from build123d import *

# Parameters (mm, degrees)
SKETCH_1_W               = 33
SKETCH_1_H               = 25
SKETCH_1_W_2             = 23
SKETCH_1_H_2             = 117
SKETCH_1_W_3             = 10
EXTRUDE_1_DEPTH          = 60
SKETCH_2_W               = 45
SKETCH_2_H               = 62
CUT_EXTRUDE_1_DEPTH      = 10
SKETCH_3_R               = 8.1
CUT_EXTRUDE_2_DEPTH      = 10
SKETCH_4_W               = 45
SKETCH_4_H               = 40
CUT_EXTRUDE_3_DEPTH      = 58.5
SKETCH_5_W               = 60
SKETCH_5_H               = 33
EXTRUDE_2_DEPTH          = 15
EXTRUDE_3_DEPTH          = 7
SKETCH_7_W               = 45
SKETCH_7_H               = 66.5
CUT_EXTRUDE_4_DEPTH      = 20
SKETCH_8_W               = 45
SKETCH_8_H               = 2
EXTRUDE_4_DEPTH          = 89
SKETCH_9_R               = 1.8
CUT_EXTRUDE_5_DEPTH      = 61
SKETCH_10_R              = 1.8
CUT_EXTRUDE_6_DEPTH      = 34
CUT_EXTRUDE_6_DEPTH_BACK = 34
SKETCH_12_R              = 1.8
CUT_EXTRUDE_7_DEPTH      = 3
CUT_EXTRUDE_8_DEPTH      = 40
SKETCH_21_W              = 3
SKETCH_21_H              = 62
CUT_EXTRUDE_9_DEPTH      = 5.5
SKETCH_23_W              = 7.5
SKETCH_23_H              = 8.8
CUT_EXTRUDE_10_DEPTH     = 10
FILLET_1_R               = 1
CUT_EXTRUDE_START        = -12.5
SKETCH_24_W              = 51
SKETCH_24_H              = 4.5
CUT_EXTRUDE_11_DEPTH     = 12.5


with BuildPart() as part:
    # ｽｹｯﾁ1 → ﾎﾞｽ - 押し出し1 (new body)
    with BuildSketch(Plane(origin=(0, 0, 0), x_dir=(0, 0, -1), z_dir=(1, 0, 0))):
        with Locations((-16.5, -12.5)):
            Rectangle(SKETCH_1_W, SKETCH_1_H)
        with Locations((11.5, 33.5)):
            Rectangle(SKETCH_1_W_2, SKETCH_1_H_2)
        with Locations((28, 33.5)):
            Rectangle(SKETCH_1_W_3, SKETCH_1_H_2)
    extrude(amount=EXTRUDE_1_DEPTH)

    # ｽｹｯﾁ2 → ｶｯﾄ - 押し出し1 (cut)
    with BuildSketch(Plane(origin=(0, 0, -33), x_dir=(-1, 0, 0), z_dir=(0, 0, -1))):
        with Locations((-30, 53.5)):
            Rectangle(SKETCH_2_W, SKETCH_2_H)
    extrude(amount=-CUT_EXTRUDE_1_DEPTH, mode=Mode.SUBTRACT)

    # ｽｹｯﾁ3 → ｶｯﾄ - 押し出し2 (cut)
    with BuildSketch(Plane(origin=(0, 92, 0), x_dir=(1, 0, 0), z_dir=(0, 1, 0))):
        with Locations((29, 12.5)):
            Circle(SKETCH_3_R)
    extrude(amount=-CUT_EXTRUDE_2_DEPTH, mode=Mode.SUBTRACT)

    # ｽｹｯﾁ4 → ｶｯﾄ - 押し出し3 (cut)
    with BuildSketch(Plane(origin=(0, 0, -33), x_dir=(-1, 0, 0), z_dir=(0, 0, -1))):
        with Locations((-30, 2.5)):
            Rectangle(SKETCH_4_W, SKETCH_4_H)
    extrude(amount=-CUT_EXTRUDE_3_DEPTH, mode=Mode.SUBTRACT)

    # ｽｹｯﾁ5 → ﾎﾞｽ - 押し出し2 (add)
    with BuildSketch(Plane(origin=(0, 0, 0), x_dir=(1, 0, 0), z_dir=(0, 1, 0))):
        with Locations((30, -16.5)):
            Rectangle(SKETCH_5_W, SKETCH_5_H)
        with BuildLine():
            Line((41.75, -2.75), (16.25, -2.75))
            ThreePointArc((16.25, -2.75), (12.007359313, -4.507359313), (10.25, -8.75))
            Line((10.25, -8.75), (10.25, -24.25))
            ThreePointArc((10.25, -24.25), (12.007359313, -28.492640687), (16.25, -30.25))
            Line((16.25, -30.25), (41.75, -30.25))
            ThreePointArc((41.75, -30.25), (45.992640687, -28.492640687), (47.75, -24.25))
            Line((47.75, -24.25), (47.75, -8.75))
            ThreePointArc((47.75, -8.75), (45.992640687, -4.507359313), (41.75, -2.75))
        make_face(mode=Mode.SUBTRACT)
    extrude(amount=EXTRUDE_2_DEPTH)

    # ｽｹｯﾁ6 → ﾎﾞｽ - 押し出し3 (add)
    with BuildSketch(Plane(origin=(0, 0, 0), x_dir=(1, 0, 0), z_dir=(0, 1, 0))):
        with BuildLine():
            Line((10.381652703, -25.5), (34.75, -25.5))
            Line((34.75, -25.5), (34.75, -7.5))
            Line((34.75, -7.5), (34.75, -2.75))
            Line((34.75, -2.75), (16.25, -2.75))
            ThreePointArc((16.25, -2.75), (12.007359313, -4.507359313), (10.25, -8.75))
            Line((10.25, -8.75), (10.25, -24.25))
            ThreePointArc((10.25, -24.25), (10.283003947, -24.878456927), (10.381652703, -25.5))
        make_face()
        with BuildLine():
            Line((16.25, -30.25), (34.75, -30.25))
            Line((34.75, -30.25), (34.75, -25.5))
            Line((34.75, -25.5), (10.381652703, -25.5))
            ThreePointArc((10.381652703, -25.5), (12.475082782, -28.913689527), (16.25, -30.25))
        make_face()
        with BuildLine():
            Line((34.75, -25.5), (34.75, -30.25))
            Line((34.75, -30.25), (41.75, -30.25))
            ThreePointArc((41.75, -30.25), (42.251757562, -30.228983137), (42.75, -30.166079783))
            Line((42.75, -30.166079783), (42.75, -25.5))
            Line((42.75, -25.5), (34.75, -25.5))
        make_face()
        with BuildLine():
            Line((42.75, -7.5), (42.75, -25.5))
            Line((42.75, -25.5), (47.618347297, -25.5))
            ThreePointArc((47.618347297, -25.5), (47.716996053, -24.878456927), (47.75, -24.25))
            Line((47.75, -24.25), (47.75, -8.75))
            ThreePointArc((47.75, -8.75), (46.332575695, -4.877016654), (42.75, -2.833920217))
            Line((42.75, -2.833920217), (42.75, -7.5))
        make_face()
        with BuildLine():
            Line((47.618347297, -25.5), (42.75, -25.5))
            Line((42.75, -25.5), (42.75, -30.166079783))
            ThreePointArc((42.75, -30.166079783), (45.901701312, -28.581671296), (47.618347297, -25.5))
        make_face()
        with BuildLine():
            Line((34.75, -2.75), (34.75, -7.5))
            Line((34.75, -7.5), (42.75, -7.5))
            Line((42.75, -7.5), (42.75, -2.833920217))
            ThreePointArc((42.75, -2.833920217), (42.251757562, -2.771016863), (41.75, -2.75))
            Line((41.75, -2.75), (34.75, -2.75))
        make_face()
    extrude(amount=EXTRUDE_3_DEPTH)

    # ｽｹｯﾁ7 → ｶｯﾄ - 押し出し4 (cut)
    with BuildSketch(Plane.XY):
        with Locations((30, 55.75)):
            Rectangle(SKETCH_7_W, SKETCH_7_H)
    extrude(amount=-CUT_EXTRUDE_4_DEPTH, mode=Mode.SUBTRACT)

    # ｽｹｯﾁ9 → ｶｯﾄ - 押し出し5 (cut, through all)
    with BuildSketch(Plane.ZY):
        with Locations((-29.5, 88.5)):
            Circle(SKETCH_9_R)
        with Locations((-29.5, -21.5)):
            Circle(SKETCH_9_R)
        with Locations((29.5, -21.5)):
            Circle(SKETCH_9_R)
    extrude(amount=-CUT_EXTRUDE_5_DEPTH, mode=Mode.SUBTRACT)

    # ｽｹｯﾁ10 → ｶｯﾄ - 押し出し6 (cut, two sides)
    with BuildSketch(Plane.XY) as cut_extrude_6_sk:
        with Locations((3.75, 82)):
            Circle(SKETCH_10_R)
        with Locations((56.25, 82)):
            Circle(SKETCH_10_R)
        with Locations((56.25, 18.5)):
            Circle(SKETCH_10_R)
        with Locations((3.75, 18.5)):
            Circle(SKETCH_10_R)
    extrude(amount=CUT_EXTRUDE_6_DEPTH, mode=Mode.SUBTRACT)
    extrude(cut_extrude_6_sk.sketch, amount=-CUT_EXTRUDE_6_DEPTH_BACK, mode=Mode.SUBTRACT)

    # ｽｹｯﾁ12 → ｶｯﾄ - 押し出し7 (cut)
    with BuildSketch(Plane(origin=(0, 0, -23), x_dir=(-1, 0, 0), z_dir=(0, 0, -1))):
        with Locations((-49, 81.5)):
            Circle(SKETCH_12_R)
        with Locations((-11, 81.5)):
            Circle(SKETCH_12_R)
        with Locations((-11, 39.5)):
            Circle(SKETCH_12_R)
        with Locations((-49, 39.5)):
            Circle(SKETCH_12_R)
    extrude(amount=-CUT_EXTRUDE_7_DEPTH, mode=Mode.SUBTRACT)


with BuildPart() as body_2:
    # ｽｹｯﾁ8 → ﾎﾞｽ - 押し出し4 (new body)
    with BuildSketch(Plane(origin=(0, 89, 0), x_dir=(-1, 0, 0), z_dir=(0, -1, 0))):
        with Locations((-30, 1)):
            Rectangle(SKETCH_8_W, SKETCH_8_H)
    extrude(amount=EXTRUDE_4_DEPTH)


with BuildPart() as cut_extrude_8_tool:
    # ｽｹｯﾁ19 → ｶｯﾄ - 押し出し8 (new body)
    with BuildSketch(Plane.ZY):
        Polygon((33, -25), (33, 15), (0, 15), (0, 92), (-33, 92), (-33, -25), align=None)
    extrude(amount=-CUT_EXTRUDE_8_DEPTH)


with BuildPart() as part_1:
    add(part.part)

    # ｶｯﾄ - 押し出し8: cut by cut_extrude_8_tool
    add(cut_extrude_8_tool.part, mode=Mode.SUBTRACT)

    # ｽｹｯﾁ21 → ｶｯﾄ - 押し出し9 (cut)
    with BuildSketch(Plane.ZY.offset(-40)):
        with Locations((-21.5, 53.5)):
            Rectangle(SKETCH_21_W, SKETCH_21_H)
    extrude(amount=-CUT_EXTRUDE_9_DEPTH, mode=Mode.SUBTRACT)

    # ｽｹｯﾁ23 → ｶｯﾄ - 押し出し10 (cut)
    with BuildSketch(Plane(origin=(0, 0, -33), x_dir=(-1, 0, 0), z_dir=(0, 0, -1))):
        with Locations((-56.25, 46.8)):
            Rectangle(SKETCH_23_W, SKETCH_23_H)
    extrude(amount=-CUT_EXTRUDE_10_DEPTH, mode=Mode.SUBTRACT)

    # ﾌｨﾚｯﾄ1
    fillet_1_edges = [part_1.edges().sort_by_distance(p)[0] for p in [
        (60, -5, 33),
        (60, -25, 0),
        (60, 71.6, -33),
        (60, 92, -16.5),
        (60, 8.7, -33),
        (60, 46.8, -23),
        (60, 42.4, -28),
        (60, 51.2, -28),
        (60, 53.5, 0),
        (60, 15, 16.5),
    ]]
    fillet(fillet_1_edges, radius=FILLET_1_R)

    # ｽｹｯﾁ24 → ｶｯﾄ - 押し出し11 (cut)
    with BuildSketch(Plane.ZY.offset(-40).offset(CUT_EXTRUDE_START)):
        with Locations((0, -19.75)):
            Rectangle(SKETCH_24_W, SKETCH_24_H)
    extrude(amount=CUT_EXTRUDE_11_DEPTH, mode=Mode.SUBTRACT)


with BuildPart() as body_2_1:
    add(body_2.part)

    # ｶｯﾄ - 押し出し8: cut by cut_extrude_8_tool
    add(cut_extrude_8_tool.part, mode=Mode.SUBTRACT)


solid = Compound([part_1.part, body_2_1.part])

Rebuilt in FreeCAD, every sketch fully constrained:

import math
import FreeCAD as App
import Part
import Sketcher

V = App.Vector
Q = App.Units.Quantity


def edges_at(feature, points):
    """Names of the edges that pass closest to the given points."""
    edges = feature.Shape.Edges
    near = lambda p: min(range(len(edges)), key=lambda i: edges[i].distToShape(Part.Vertex(*p))[0])
    return sorted({f"Edge{near(p) + 1}" for p in points})

doc = App.newDocument("Part")
body = doc.addObject("PartDesign::Body", "Body")

# Sketch on YZ plane
sketch1 = body.newObject("Sketcher::SketchObject", "Sketch")
sketch1.AttachmentSupport = (doc.getObject("YZ_Plane"), [""])
sketch1.MapMode = "FlatFace"
sketch1.addGeometry(Part.LineSegment(V(0, 33, 0), V(-25, 33, 0)), False)
sketch1.addGeometry(Part.LineSegment(V(-25, 33, 0), V(-25, -33, 0)), False)
sketch1.addGeometry(Part.LineSegment(V(-25, -33, 0), V(92, -33, 0)), False)
sketch1.addGeometry(Part.LineSegment(V(92, -33, 0), V(92, 0, 0)), False)
sketch1.addGeometry(Part.LineSegment(V(92, 0, 0), V(0, 0, 0)), False)
sketch1.addGeometry(Part.LineSegment(V(0, 0, 0), V(0, 33, 0)), False)
sketch1.addConstraint(Sketcher.Constraint("Coincident", 0, 2, 1, 1))
sketch1.addConstraint(Sketcher.Constraint("Coincident", 1, 2, 2, 1))
sketch1.addConstraint(Sketcher.Constraint("Coincident", 2, 2, 3, 1))
sketch1.addConstraint(Sketcher.Constraint("Coincident", 3, 2, 4, 1))
sketch1.addConstraint(Sketcher.Constraint("Coincident", 4, 2, 5, 1))
sketch1.addConstraint(Sketcher.Constraint("Coincident", 5, 2, 0, 1))
sketch1.addConstraint(Sketcher.Constraint("Horizontal", 0))
sketch1.addConstraint(Sketcher.Constraint("Vertical", 1))
sketch1.addConstraint(Sketcher.Constraint("Horizontal", 2))
sketch1.addConstraint(Sketcher.Constraint("Vertical", 3))
sketch1.addConstraint(Sketcher.Constraint("Horizontal", 4))
sketch1.addConstraint(Sketcher.Constraint("Vertical", 5))
sketch1.addConstraint(Sketcher.Constraint("Coincident", 4, 2, -1, 1))
sketch1.addConstraint(Sketcher.Constraint("Equal", 3, 5))
sketch1.addConstraint(Sketcher.Constraint("DistanceX", 0, 2, 0, 1, Q("25 mm")))
sketch1.addConstraint(Sketcher.Constraint("DistanceX", 2, 1, 2, 2, Q("117 mm")))
sketch1.addConstraint(Sketcher.Constraint("DistanceY", 1, 2, 1, 1, Q("66 mm")))
pad1 = body.newObject("PartDesign::Pad", "Pad")
pad1.Profile = sketch1
pad1.Length = 60

# Sketch on XY plane
sketch2 = body.newObject("Sketcher::SketchObject", "Sketch001")
sketch2.AttachmentSupport = (doc.getObject("XY_Plane"), [""])
sketch2.MapMode = "FlatFace"
sketch2.AttachmentOffset = App.Placement(V(0, 0, -33), App.Rotation())
sketch2.addGeometry(Part.LineSegment(V(52, 84, 0), V(52, 22, 0)), False)
sketch2.addGeometry(Part.LineSegment(V(52, 22, 0), V(8, 22, 0)), False)
sketch2.addGeometry(Part.LineSegment(V(8, 22, 0), V(8, 84, 0)), False)
sketch2.addGeometry(Part.LineSegment(V(8, 84, 0), V(52, 84, 0)), False)
sketch2.addConstraint(Sketcher.Constraint("Coincident", 0, 2, 1, 1))
sketch2.addConstraint(Sketcher.Constraint("Coincident", 1, 2, 2, 1))
sketch2.addConstraint(Sketcher.Constraint("Coincident", 2, 2, 3, 1))
sketch2.addConstraint(Sketcher.Constraint("Coincident", 3, 2, 0, 1))
sketch2.addConstraint(Sketcher.Constraint("Vertical", 0))
sketch2.addConstraint(Sketcher.Constraint("Horizontal", 1))
sketch2.addConstraint(Sketcher.Constraint("Vertical", 2))
sketch2.addConstraint(Sketcher.Constraint("Horizontal", 3))
sketch2.addConstraint(Sketcher.Constraint("DistanceX", 1, 2, 1, 1, Q("45 mm")))
sketch2.addConstraint(Sketcher.Constraint("DistanceY", 0, 2, 0, 1, Q("62 mm")))
sketch2.addConstraint(Sketcher.Constraint("DistanceX", -1, 1, 0, 2, Q("52.5 mm")))
sketch2.addConstraint(Sketcher.Constraint("DistanceY", -1, 1, 0, 2, Q("22.5 mm")))
pocket1 = body.newObject("PartDesign::Pocket", "Pocket")
pocket1.Profile = sketch2
pocket1.Length = 10
pocket1.Reversed = True

# Sketch on XZ plane
sketch3 = body.newObject("Sketcher::SketchObject", "Sketch002")
sketch3.AttachmentSupport = (doc.getObject("XZ_Plane"), [""])
sketch3.MapMode = "FlatFace"
sketch3.AttachmentOffset = App.Placement(V(0, 0, -92), App.Rotation())
sketch3.addGeometry(Part.Circle(V(29, -12, 0), V(0, 0, 1), 8), False)
sketch3.addConstraint(Sketcher.Constraint("Diameter", 0, Q("16.2 mm")))
sketch3.addConstraint(Sketcher.Constraint("DistanceX", -1, 1, 0, 3, Q("29 mm")))
sketch3.addConstraint(Sketcher.Constraint("DistanceY", 0, 3, -1, 1, Q("12.5 mm")))
pocket2 = body.newObject("PartDesign::Pocket", "Pocket001")
pocket2.Profile = sketch3
pocket2.Length = 10
pocket2.Reversed = True

# Sketch on XY plane
sketch4 = body.newObject("Sketcher::SketchObject", "Sketch003")
sketch4.AttachmentSupport = (doc.getObject("XY_Plane"), [""])
sketch4.MapMode = "FlatFace"
sketch4.AttachmentOffset = App.Placement(V(0, 0, -33), App.Rotation())
sketch4.addGeometry(Part.LineSegment(V(52, 22, 0), V(52, -18, 0)), False)
sketch4.addGeometry(Part.LineSegment(V(52, -18, 0), V(8, -18, 0)), False)
sketch4.addGeometry(Part.LineSegment(V(8, -18, 0), V(8, 22, 0)), False)
sketch4.addGeometry(Part.LineSegment(V(8, 22, 0), V(52, 22, 0)), False)
sketch4.addConstraint(Sketcher.Constraint("Coincident", 0, 2, 1, 1))
sketch4.addConstraint(Sketcher.Constraint("Coincident", 1, 2, 2, 1))
sketch4.addConstraint(Sketcher.Constraint("Coincident", 2, 2, 3, 1))
sketch4.addConstraint(Sketcher.Constraint("Coincident", 3, 2, 0, 1))
sketch4.addConstraint(Sketcher.Constraint("Vertical", 0))
sketch4.addConstraint(Sketcher.Constraint("Horizontal", 1))
sketch4.addConstraint(Sketcher.Constraint("Vertical", 2))
sketch4.addConstraint(Sketcher.Constraint("Horizontal", 3))
sketch4.addConstraint(Sketcher.Constraint("DistanceX", 1, 2, 1, 1, Q("45 mm")))
sketch4.addConstraint(Sketcher.Constraint("DistanceY", 0, 2, 0, 1, Q("40 mm")))
sketch4.addConstraint(Sketcher.Constraint("DistanceX", -1, 1, 0, 2, Q("52.5 mm")))
sketch4.addConstraint(Sketcher.Constraint("DistanceY", 0, 2, -1, 1, Q("17.5 mm")))
pocket3 = body.newObject("PartDesign::Pocket", "Pocket002")
pocket3.Profile = sketch4
pocket3.Length = 58.5
pocket3.Reversed = True

# Sketch on XZ plane
sketch5 = body.newObject("Sketcher::SketchObject", "Sketch004")
sketch5.AttachmentSupport = (doc.getObject("XZ_Plane"), [""])
sketch5.MapMode = "FlatFace"
sketch5.addGeometry(Part.LineSegment(V(0, 0, 0), V(0, 33, 0)), False)
sketch5.addGeometry(Part.LineSegment(V(0, 33, 0), V(60, 33, 0)), False)
sketch5.addGeometry(Part.LineSegment(V(60, 33, 0), V(60, 0, 0)), False)
sketch5.addGeometry(Part.LineSegment(V(60, 0, 0), V(0, 0, 0)), False)
sketch5.addGeometry(Part.LineSegment(V(16, 3, 0), V(42, 3, 0)), False)
sketch5.addGeometry(Part.ArcOfCircle(Part.Circle(V(42, 9, 0), V(0, 0, 1), 6), math.radians(-90), math.radians(0)), False)
sketch5.addGeometry(Part.LineSegment(V(48, 9, 0), V(48, 24, 0)), False)
sketch5.addGeometry(Part.ArcOfCircle(Part.Circle(V(42, 24, 0), V(0, 0, 1), 6), math.radians(0), math.radians(90)), False)
sketch5.addGeometry(Part.LineSegment(V(42, 30, 0), V(16, 30, 0)), False)
sketch5.addGeometry(Part.ArcOfCircle(Part.Circle(V(16, 24, 0), V(0, 0, 1), 6), math.radians(90), math.radians(180)), False)
sketch5.addGeometry(Part.LineSegment(V(10, 24, 0), V(10, 9, 0)), False)
sketch5.addGeometry(Part.ArcOfCircle(Part.Circle(V(16, 9, 0), V(0, 0, 1), 6), math.radians(180), math.radians(270)), False)
sketch5.addConstraint(Sketcher.Constraint("Coincident", 0, 2, 1, 1))
sketch5.addConstraint(Sketcher.Constraint("Coincident", 1, 2, 2, 1))
sketch5.addConstraint(Sketcher.Constraint("Coincident", 2, 2, 3, 1))
sketch5.addConstraint(Sketcher.Constraint("Coincident", 3, 2, 0, 1))
sketch5.addConstraint(Sketcher.Constraint("Tangent", 4, 2, 5, 1))
sketch5.addConstraint(Sketcher.Constraint("Tangent", 5, 2, 6, 1))
sketch5.addConstraint(Sketcher.Constraint("Tangent", 6, 2, 7, 1))
sketch5.addConstraint(Sketcher.Constraint("Tangent", 7, 2, 8, 1))
sketch5.addConstraint(Sketcher.Constraint("Tangent", 8, 2, 9, 1))
sketch5.addConstraint(Sketcher.Constraint("Tangent", 9, 2, 10, 1))
sketch5.addConstraint(Sketcher.Constraint("Tangent", 10, 2, 11, 1))
sketch5.addConstraint(Sketcher.Constraint("Tangent", 11, 2, 4, 1))
sketch5.addConstraint(Sketcher.Constraint("Vertical", 0))
sketch5.addConstraint(Sketcher.Constraint("Horizontal", 1))
sketch5.addConstraint(Sketcher.Constraint("Vertical", 2))
sketch5.addConstraint(Sketcher.Constraint("Horizontal", 3))
sketch5.addConstraint(Sketcher.Constraint("Horizontal", 4))
sketch5.addConstraint(Sketcher.Constraint("Vertical", 6))
sketch5.addConstraint(Sketcher.Constraint("Horizontal", 8))
sketch5.addConstraint(Sketcher.Constraint("Vertical", 10))
sketch5.addConstraint(Sketcher.Constraint("Coincident", 3, 2, -1, 1))
sketch5.addConstraint(Sketcher.Constraint("Equal", 5, 7))
sketch5.addConstraint(Sketcher.Constraint("Equal", 7, 9))
sketch5.addConstraint(Sketcher.Constraint("Equal", 9, 11))
sketch5.addConstraint(Sketcher.Constraint("Radius", 5, Q("6 mm")))
sketch5.addConstraint(Sketcher.Constraint("DistanceX", 1, 1, 1, 2, Q("60 mm")))
sketch5.addConstraint(Sketcher.Constraint("DistanceY", 0, 1, 0, 2, Q("33 mm")))
sketch5.addConstraint(Sketcher.Constraint("DistanceX", 4, 1, 4, 2, Q("25.5 mm")))
sketch5.addConstraint(Sketcher.Constraint("DistanceY", 6, 1, 6, 2, Q("15.5 mm")))
sketch5.addConstraint(Sketcher.Constraint("DistanceX", -1, 1, 5, 3, Q("41.75 mm")))
sketch5.addConstraint(Sketcher.Constraint("DistanceY", -1, 1, 5, 3, Q("8.75 mm")))
pad2 = body.newObject("PartDesign::Pad", "Pad001")
pad2.Profile = sketch5
pad2.Length = 15
pad2.Reversed = True

# Sketch on XZ plane
sketch6 = body.newObject("Sketcher::SketchObject", "Sketch005")
sketch6.AttachmentSupport = (doc.getObject("XZ_Plane"), [""])
sketch6.MapMode = "FlatFace"
sketch6.addGeometry(Part.ArcOfCircle(Part.Circle(V(16.2, 8.8, 0), V(0, 0, 1), 6), math.radians(180), math.radians(270)), False)
sketch6.addGeometry(Part.LineSegment(V(10.2, 8.8, 0), V(10.2, 24.2, 0)), False)
sketch6.addGeometry(Part.ArcOfCircle(Part.Circle(V(16.2, 24.3, 0), V(0, 0, 1), 6), math.radians(167.98), math.radians(180)), False)
sketch6.addGeometry(Part.ArcOfCircle(Part.Circle(V(16.2, 24.3, 0), V(0, 0, 1), 6), math.radians(90), math.radians(168)), False)
sketch6.addGeometry(Part.LineSegment(V(16.2, 30.2, 0), V(41.8, 30.2, 0)), False)
sketch6.addGeometry(Part.ArcOfCircle(Part.Circle(V(41.8, 24.3, 0), V(0, 0, 1), 6), math.radians(80.41), math.radians(90)), False)
sketch6.addGeometry(Part.ArcOfCircle(Part.Circle(V(41.8, 24.3, 0), V(0, 0, 1), 6), math.radians(12), math.radians(80)), False)
sketch6.addGeometry(Part.ArcOfCircle(Part.Circle(V(41.8, 24.3, 0), V(0, 0, 1), 6), math.radians(0), math.radians(12.02)), False)
sketch6.addGeometry(Part.LineSegment(V(47.8, 24.2, 0), V(47.8, 8.8, 0)), False)
sketch6.addGeometry(Part.ArcOfCircle(Part.Circle(V(41.8, 8.8, 0), V(0, 0, 1), 6), math.radians(-80), math.radians(0)), False)
sketch6.addGeometry(Part.ArcOfCircle(Part.Circle(V(41.8, 8.7, 0), V(0, 0, 1), 6), math.radians(-90), math.radians(-80.41)), False)
sketch6.addGeometry(Part.LineSegment(V(41.8, 2.8, 0), V(16.2, 2.8, 0)), False)
sketch6.addGeometry(Part.LineSegment(V(42.8, 7.5, 0), V(42.8, 25.5, 0)), False)
sketch6.addGeometry(Part.LineSegment(V(42.8, 25.5, 0), V(34.8, 25.5, 0)), False)
sketch6.addGeometry(Part.LineSegment(V(34.8, 25.5, 0), V(34.8, 7.5, 0)), False)
sketch6.addGeometry(Part.LineSegment(V(34.8, 7.5, 0), V(42.8, 7.5, 0)), False)
sketch6.addConstraint(Sketcher.Constraint("Tangent", 0, 1, 1, 1))
sketch6.addConstraint(Sketcher.Constraint("Tangent", 1, 2, 2, 2))
sketch6.addConstraint(Sketcher.Constraint("Tangent", 2, 1, 3, 2))
sketch6.addConstraint(Sketcher.Constraint("Tangent", 3, 1, 4, 1))
sketch6.addConstraint(Sketcher.Constraint("Tangent", 4, 2, 5, 2))
sketch6.addConstraint(Sketcher.Constraint("Tangent", 5, 1, 6, 2))
sketch6.addConstraint(Sketcher.Constraint("Tangent", 6, 1, 7, 2))
sketch6.addConstraint(Sketcher.Constraint("Tangent", 7, 1, 8, 1))
sketch6.addConstraint(Sketcher.Constraint("Tangent", 8, 2, 9, 2))
sketch6.addConstraint(Sketcher.Constraint("Tangent", 9, 1, 10, 2))
sketch6.addConstraint(Sketcher.Constraint("Tangent", 10, 1, 11, 1))
sketch6.addConstraint(Sketcher.Constraint("Tangent", 11, 2, 0, 2))
sketch6.addConstraint(Sketcher.Constraint("Coincident", 12, 2, 13, 1))
sketch6.addConstraint(Sketcher.Constraint("Coincident", 13, 2, 14, 1))
sketch6.addConstraint(Sketcher.Constraint("Coincident", 14, 2, 15, 1))
sketch6.addConstraint(Sketcher.Constraint("Coincident", 15, 2, 12, 1))
sketch6.addConstraint(Sketcher.Constraint("Vertical", 1))
sketch6.addConstraint(Sketcher.Constraint("Horizontal", 4))
sketch6.addConstraint(Sketcher.Constraint("Vertical", 8))
sketch6.addConstraint(Sketcher.Constraint("Horizontal", 11))
sketch6.addConstraint(Sketcher.Constraint("Vertical", 12))
sketch6.addConstraint(Sketcher.Constraint("Horizontal", 13))
sketch6.addConstraint(Sketcher.Constraint("Vertical", 14))
sketch6.addConstraint(Sketcher.Constraint("Horizontal", 15))
sketch6.addConstraint(Sketcher.Constraint("Coincident", 7, 3, 5, 3))
sketch6.addConstraint(Sketcher.Constraint("Equal", 0, 2))
sketch6.addConstraint(Sketcher.Constraint("Equal", 2, 3))
sketch6.addConstraint(Sketcher.Constraint("Equal", 3, 5))
sketch6.addConstraint(Sketcher.Constraint("Equal", 7, 9))
sketch6.addConstraint(Sketcher.Constraint("Equal", 9, 10))
sketch6.addConstraint(Sketcher.Constraint("Horizontal", 2, 1, 6, 1))
sketch6.addConstraint(Sketcher.Constraint("Horizontal", 6, 1, 12, 2))
sketch6.addConstraint(Sketcher.Constraint("Vertical", 5, 1, 9, 1))
sketch6.addConstraint(Sketcher.Constraint("Vertical", 9, 1, 12, 2))
sketch6.addConstraint(Sketcher.Constraint("Radius", 0, Q("6 mm")))
sketch6.addConstraint(Sketcher.Constraint("DistanceX", 13, 2, 13, 1, Q("8 mm")))
sketch6.addConstraint(Sketcher.Constraint("DistanceY", 12, 1, 12, 2, Q("18 mm")))
sketch6.addConstraint(Sketcher.Constraint("DistanceX", 4, 1, 4, 2, Q("25.5 mm")))
sketch6.addConstraint(Sketcher.Constraint("DistanceY", 1, 1, 1, 2, Q("15.5 mm")))
sketch6.addConstraint(Sketcher.Constraint("DistanceX", 4, 2, 5, 1, Q("1 mm")))
sketch6.addConstraint(Sketcher.Constraint("DistanceY", -1, 1, 2, 1, Q("25.5 mm")))
sketch6.addConstraint(Sketcher.Constraint("DistanceX", -1, 1, 0, 3, Q("16.25 mm")))
sketch6.addConstraint(Sketcher.Constraint("DistanceY", -1, 1, 0, 3, Q("8.75 mm")))
pad3 = body.newObject("PartDesign::Pad", "Pad002")
pad3.Profile = sketch6
pad3.Length = 7
pad3.Reversed = True

# Sketch on XY plane
sketch7 = body.newObject("Sketcher::SketchObject", "Sketch006")
sketch7.AttachmentSupport = (doc.getObject("XY_Plane"), [""])
sketch7.MapMode = "FlatFace"
sketch7.addGeometry(Part.LineSegment(V(8, 89, 0), V(8, 22, 0)), False)
sketch7.addGeometry(Part.LineSegment(V(8, 22, 0), V(52, 22, 0)), False)
sketch7.addGeometry(Part.LineSegment(V(52, 22, 0), V(52, 89, 0)), False)
sketch7.addGeometry(Part.LineSegment(V(52, 89, 0), V(8, 89, 0)), False)
sketch7.addConstraint(Sketcher.Constraint("Coincident", 0, 2, 1, 1))
sketch7.addConstraint(Sketcher.Constraint("Coincident", 1, 2, 2, 1))
sketch7.addConstraint(Sketcher.Constraint("Coincident", 2, 2, 3, 1))
sketch7.addConstraint(Sketcher.Constraint("Coincident", 3, 2, 0, 1))
sketch7.addConstraint(Sketcher.Constraint("Vertical", 0))
sketch7.addConstraint(Sketcher.Constraint("Horizontal", 1))
sketch7.addConstraint(Sketcher.Constraint("Vertical", 2))
sketch7.addConstraint(Sketcher.Constraint("Horizontal", 3))
sketch7.addConstraint(Sketcher.Constraint("DistanceX", 1, 1, 1, 2, Q("45 mm")))
sketch7.addConstraint(Sketcher.Constraint("DistanceY", 0, 2, 0, 1, Q("66.5 mm")))
sketch7.addConstraint(Sketcher.Constraint("DistanceY", -1, 1, 2, 2, Q("89 mm")))
sketch7.addConstraint(Sketcher.Constraint("DistanceX", -1, 1, 0, 2, Q("7.5 mm")))
pocket4 = body.newObject("PartDesign::Pocket", "Pocket003")
pocket4.Profile = sketch7
pocket4.Length = 20

# Sketch on YZ plane
sketch8 = body.newObject("Sketcher::SketchObject", "Sketch007")
sketch8.AttachmentSupport = (doc.getObject("YZ_Plane"), [""])
sketch8.MapMode = "FlatFace"
sketch8.addGeometry(Part.Circle(V(88.5, -29.5, 0), V(0, 0, 1), 1.8), False)
sketch8.addGeometry(Part.Circle(V(-21.5, -29.5, 0), V(0, 0, 1), 1.8), False)
sketch8.addGeometry(Part.Circle(V(-21.5, 29.5, 0), V(0, 0, 1), 1.8), False)
sketch8.addConstraint(Sketcher.Constraint("Equal", 0, 1))
sketch8.addConstraint(Sketcher.Constraint("Equal", 1, 2))
sketch8.addConstraint(Sketcher.Constraint("Symmetric", 1, 3, 2, 3, -1))
sketch8.addConstraint(Sketcher.Constraint("Horizontal", 0, 3, 1, 3))
sketch8.addConstraint(Sketcher.Constraint("Diameter", 0, Q("3.6 mm")))
sketch8.addConstraint(Sketcher.Constraint("DistanceX", 1, 3, 0, 3, Q("110 mm")))
sketch8.addConstraint(Sketcher.Constraint("DistanceY", 1, 3, 2, 3, Q("59 mm")))
sketch8.addConstraint(Sketcher.Constraint("DistanceX", -1, 1, 0, 3, Q("88.5 mm")))
pocket5 = body.newObject("PartDesign::Pocket", "Pocket004")
pocket5.Profile = sketch8
pocket5.Type = "ThroughAll"
pocket5.Reversed = True

# Sketch on XY plane
sketch9 = body.newObject("Sketcher::SketchObject", "Sketch008")
sketch9.AttachmentSupport = (doc.getObject("XY_Plane"), [""])
sketch9.MapMode = "FlatFace"
sketch9.addGeometry(Part.Circle(V(3.8, 82, 0), V(0, 0, 1), 1.8), False)
sketch9.addGeometry(Part.Circle(V(56.2, 82, 0), V(0, 0, 1), 1.8), False)
sketch9.addGeometry(Part.Circle(V(56.2, 18.5, 0), V(0, 0, 1), 1.8), False)
sketch9.addGeometry(Part.Circle(V(3.8, 18.5, 0), V(0, 0, 1), 1.8), False)
sketch9.addConstraint(Sketcher.Constraint("Equal", 0, 1))
sketch9.addConstraint(Sketcher.Constraint("Equal", 1, 2))
sketch9.addConstraint(Sketcher.Constraint("Equal", 2, 3))
sketch9.addConstraint(Sketcher.Constraint("Horizontal", 0, 3, 1, 3))
sketch9.addConstraint(Sketcher.Constraint("Horizontal", 2, 3, 3, 3))
sketch9.addConstraint(Sketcher.Constraint("Vertical", 1, 3, 2, 3))
sketch9.addConstraint(Sketcher.Constraint("Vertical", 0, 3, 3, 3))
sketch9.addConstraint(Sketcher.Constraint("Diameter", 0, Q("3.6 mm")))
sketch9.addConstraint(Sketcher.Constraint("DistanceY", -1, 1, 0, 3, Q("82 mm")))
sketch9.addConstraint(Sketcher.Constraint("DistanceY", -1, 1, 2, 3, Q("18.5 mm")))
sketch9.addConstraint(Sketcher.Constraint("DistanceX", 0, 3, 1, 3, Q("52.5 mm")))
sketch9.addConstraint(Sketcher.Constraint("DistanceX", -1, 1, 0, 3, Q("3.75 mm")))
pocket6 = body.newObject("PartDesign::Pocket", "Pocket005")
pocket6.Profile = sketch9
pocket6.Type = "ThroughAll"
pocket6.Midplane = True

# Sketch on XY plane
sketch10 = body.newObject("Sketcher::SketchObject", "Sketch009")
sketch10.AttachmentSupport = (doc.getObject("XY_Plane"), [""])
sketch10.MapMode = "FlatFace"
sketch10.AttachmentOffset = App.Placement(V(0, 0, -23), App.Rotation())
sketch10.addGeometry(Part.Circle(V(49, 81.5, 0), V(0, 0, 1), 1.8), False)
sketch10.addGeometry(Part.Circle(V(11, 81.5, 0), V(0, 0, 1), 1.8), False)
sketch10.addGeometry(Part.Circle(V(11, 39.5, 0), V(0, 0, 1), 1.8), False)
sketch10.addGeometry(Part.Circle(V(49, 39.5, 0), V(0, 0, 1), 1.8), False)
sketch10.addConstraint(Sketcher.Constraint("Equal", 0, 1))
sketch10.addConstraint(Sketcher.Constraint("Equal", 1, 2))
sketch10.addConstraint(Sketcher.Constraint("Equal", 2, 3))
sketch10.addConstraint(Sketcher.Constraint("Horizontal", 0, 3, 1, 3))
sketch10.addConstraint(Sketcher.Constraint("Horizontal", 2, 3, 3, 3))
sketch10.addConstraint(Sketcher.Constraint("Vertical", 1, 3, 2, 3))
sketch10.addConstraint(Sketcher.Constraint("Vertical", 0, 3, 3, 3))
sketch10.addConstraint(Sketcher.Constraint("Diameter", 0, Q("3.6 mm")))
sketch10.addConstraint(Sketcher.Constraint("DistanceX", -1, 1, 0, 3, Q("49 mm")))
sketch10.addConstraint(Sketcher.Constraint("DistanceX", -1, 1, 1, 3, Q("11 mm")))
sketch10.addConstraint(Sketcher.Constraint("DistanceY", 2, 3, 1, 3, Q("42 mm")))
sketch10.addConstraint(Sketcher.Constraint("DistanceY", -1, 1, 0, 3, Q("81.5 mm")))
pocket7 = body.newObject("PartDesign::Pocket", "Pocket006")
pocket7.Profile = sketch10
pocket7.Length = 3
pocket7.Reversed = True
body2 = doc.addObject("PartDesign::Body", "Body001")

# Sketch on XZ plane
sketch11 = body2.newObject("Sketcher::SketchObject", "Sketch010")
sketch11.AttachmentSupport = (doc.getObject("XZ_Plane001"), [""])
sketch11.MapMode = "FlatFace"
sketch11.AttachmentOffset = App.Placement(V(0, 0, -89), App.Rotation())
sketch11.addGeometry(Part.LineSegment(V(52.5, -2, 0), V(52.5, 0, 0)), False)
sketch11.addGeometry(Part.LineSegment(V(52.5, 0, 0), V(7.5, 0, 0)), False)
sketch11.addGeometry(Part.LineSegment(V(7.5, 0, 0), V(7.5, -2, 0)), False)
sketch11.addGeometry(Part.LineSegment(V(7.5, -2, 0), V(52.5, -2, 0)), False)
sketch11.addConstraint(Sketcher.Constraint("Coincident", 0, 2, 1, 1))
sketch11.addConstraint(Sketcher.Constraint("Coincident", 1, 2, 2, 1))
sketch11.addConstraint(Sketcher.Constraint("Coincident", 2, 2, 3, 1))
sketch11.addConstraint(Sketcher.Constraint("Coincident", 3, 2, 0, 1))
sketch11.addConstraint(Sketcher.Constraint("Vertical", 0))
sketch11.addConstraint(Sketcher.Constraint("Horizontal", 1))
sketch11.addConstraint(Sketcher.Constraint("Vertical", 2))
sketch11.addConstraint(Sketcher.Constraint("Horizontal", 3))
sketch11.addConstraint(Sketcher.Constraint("PointOnObject", 0, 2, -1))
sketch11.addConstraint(Sketcher.Constraint("DistanceX", 1, 2, 1, 1, Q("45 mm")))
sketch11.addConstraint(Sketcher.Constraint("DistanceY", 0, 1, 0, 2, Q("2 mm")))
sketch11.addConstraint(Sketcher.Constraint("DistanceX", -1, 1, 0, 2, Q("52.5 mm")))
pad4 = body2.newObject("PartDesign::Pad", "Pad003")
pad4.Profile = sketch11
pad4.Length = 89
body3 = doc.addObject("PartDesign::Body", "Body002")

# Sketch on YZ plane
sketch12 = body3.newObject("Sketcher::SketchObject", "Sketch011")
sketch12.AttachmentSupport = (doc.getObject("YZ_Plane002"), [""])
sketch12.MapMode = "FlatFace"
sketch12.addGeometry(Part.LineSegment(V(-25, 33, 0), V(15, 33, 0)), False)
sketch12.addGeometry(Part.LineSegment(V(15, 33, 0), V(15, 0, 0)), False)
sketch12.addGeometry(Part.LineSegment(V(15, 0, 0), V(92, 0, 0)), False)
sketch12.addGeometry(Part.LineSegment(V(92, 0, 0), V(92, -33, 0)), False)
sketch12.addGeometry(Part.LineSegment(V(92, -33, 0), V(-25, -33, 0)), False)
sketch12.addGeometry(Part.LineSegment(V(-25, -33, 0), V(-25, 33, 0)), False)
sketch12.addConstraint(Sketcher.Constraint("Coincident", 0, 2, 1, 1))
sketch12.addConstraint(Sketcher.Constraint("Coincident", 1, 2, 2, 1))
sketch12.addConstraint(Sketcher.Constraint("Coincident", 2, 2, 3, 1))
sketch12.addConstraint(Sketcher.Constraint("Coincident", 3, 2, 4, 1))
sketch12.addConstraint(Sketcher.Constraint("Coincident", 4, 2, 5, 1))
sketch12.addConstraint(Sketcher.Constraint("Coincident", 5, 2, 0, 1))
sketch12.addConstraint(Sketcher.Constraint("Horizontal", 0))
sketch12.addConstraint(Sketcher.Constraint("Vertical", 1))
sketch12.addConstraint(Sketcher.Constraint("Horizontal", 2))
sketch12.addConstraint(Sketcher.Constraint("Vertical", 3))
sketch12.addConstraint(Sketcher.Constraint("Horizontal", 4))
sketch12.addConstraint(Sketcher.Constraint("Vertical", 5))
sketch12.addConstraint(Sketcher.Constraint("PointOnObject", 1, 2, -1))
sketch12.addConstraint(Sketcher.Constraint("Equal", 1, 3))
sketch12.addConstraint(Sketcher.Constraint("DistanceX", 0, 1, 0, 2, Q("40 mm")))
sketch12.addConstraint(Sketcher.Constraint("DistanceX", 2, 1, 2, 2, Q("77 mm")))
sketch12.addConstraint(Sketcher.Constraint("DistanceY", 1, 2, 1, 1, Q("33 mm")))
sketch12.addConstraint(Sketcher.Constraint("DistanceX", -1, 1, 0, 2, Q("15 mm")))
pad5 = body3.newObject("PartDesign::Pad", "Pad004")
pad5.Profile = sketch12
pad5.Length = 40
doc.recompute()

body4 = doc.addObject("PartDesign::Body", "Body003")
body4.BaseFeature = body3
boolean = body.newObject("PartDesign::Boolean", "Boolean")
boolean.Type = "Cut"
boolean.addObjects([body4])
doc.recompute()

# Sketch on YZ plane
sketch13 = body.newObject("Sketcher::SketchObject", "Sketch012")
sketch13.AttachmentSupport = (doc.getObject("YZ_Plane"), [""])
sketch13.MapMode = "FlatFace"
sketch13.AttachmentOffset = App.Placement(V(0, 0, 40), App.Rotation())
sketch13.addGeometry(Part.LineSegment(V(84.5, -23, 0), V(22.5, -23, 0)), False)
sketch13.addGeometry(Part.LineSegment(V(22.5, -23, 0), V(22.5, -20, 0)), False)
sketch13.addGeometry(Part.LineSegment(V(22.5, -20, 0), V(84.5, -20, 0)), False)
sketch13.addGeometry(Part.LineSegment(V(84.5, -20, 0), V(84.5, -23, 0)), False)
sketch13.addConstraint(Sketcher.Constraint("Coincident", 0, 2, 1, 1))
sketch13.addConstraint(Sketcher.Constraint("Coincident", 1, 2, 2, 1))
sketch13.addConstraint(Sketcher.Constraint("Coincident", 2, 2, 3, 1))
sketch13.addConstraint(Sketcher.Constraint("Coincident", 3, 2, 0, 1))
sketch13.addConstraint(Sketcher.Constraint("Horizontal", 0))
sketch13.addConstraint(Sketcher.Constraint("Vertical", 1))
sketch13.addConstraint(Sketcher.Constraint("Horizontal", 2))
sketch13.addConstraint(Sketcher.Constraint("Vertical", 3))
sketch13.addConstraint(Sketcher.Constraint("DistanceX", 0, 2, 0, 1, Q("62 mm")))
sketch13.addConstraint(Sketcher.Constraint("DistanceY", 1, 1, 1, 2, Q("3 mm")))
sketch13.addConstraint(Sketcher.Constraint("DistanceY", 0, 2, -1, 1, Q("23 mm")))
sketch13.addConstraint(Sketcher.Constraint("DistanceX", -1, 1, 0, 2, Q("22.5 mm")))
pocket8 = body.newObject("PartDesign::Pocket", "Pocket007")
pocket8.Profile = sketch13
pocket8.Length = 5.5
pocket8.Reversed = True

# Sketch on XY plane
sketch14 = body.newObject("Sketcher::SketchObject", "Sketch013")
sketch14.AttachmentSupport = (doc.getObject("XY_Plane"), [""])
sketch14.MapMode = "FlatFace"
sketch14.AttachmentOffset = App.Placement(V(0, 0, -33), App.Rotation())
sketch14.addGeometry(Part.LineSegment(V(60, 51, 0), V(60, 42, 0)), False)
sketch14.addGeometry(Part.LineSegment(V(60, 42, 0), V(52, 42, 0)), False)
sketch14.addGeometry(Part.LineSegment(V(52, 42, 0), V(52, 51, 0)), False)
sketch14.addGeometry(Part.LineSegment(V(52, 51, 0), V(60, 51, 0)), False)
sketch14.addConstraint(Sketcher.Constraint("Coincident", 0, 2, 1, 1))
sketch14.addConstraint(Sketcher.Constraint("Coincident", 1, 2, 2, 1))
sketch14.addConstraint(Sketcher.Constraint("Coincident", 2, 2, 3, 1))
sketch14.addConstraint(Sketcher.Constraint("Coincident", 3, 2, 0, 1))
sketch14.addConstraint(Sketcher.Constraint("Vertical", 0))
sketch14.addConstraint(Sketcher.Constraint("Horizontal", 1))
sketch14.addConstraint(Sketcher.Constraint("Vertical", 2))
sketch14.addConstraint(Sketcher.Constraint("Horizontal", 3))
sketch14.addConstraint(Sketcher.Constraint("DistanceX", 1, 2, 1, 1, Q("7.5 mm")))
sketch14.addConstraint(Sketcher.Constraint("DistanceY", 0, 2, 0, 1, Q("8.8 mm")))
sketch14.addConstraint(Sketcher.Constraint("DistanceX", -1, 1, 0, 2, Q("60 mm")))
sketch14.addConstraint(Sketcher.Constraint("DistanceY", -1, 1, 0, 2, Q("42.4 mm")))
pocket9 = body.newObject("PartDesign::Pocket", "Pocket008")
pocket9.Profile = sketch14
pocket9.Length = 10
pocket9.Reversed = True
doc.recompute()

fillet = body.newObject("PartDesign::Fillet", "Fillet")
fillet.Base = (pocket9, edges_at(pocket9, [
    (60, -5, 33),
    (60, -25, 0),
    (60, 71.6, -33),
    (60, 92, -16.5),
    (60, 8.7, -33),
    (60, 46.8, -23),
    (60, 42.4, -28),
    (60, 51.2, -28),
    (60, 53.5, 0),
    (60, 15, 16.5),
]))
fillet.Radius = 1

# Sketch on YZ plane
sketch15 = body.newObject("Sketcher::SketchObject", "Sketch014")
sketch15.AttachmentSupport = (doc.getObject("YZ_Plane"), [""])
sketch15.MapMode = "FlatFace"
sketch15.AttachmentOffset = App.Placement(V(0, 0, 52.5), App.Rotation())
sketch15.addGeometry(Part.LineSegment(V(-17.5, -25.5, 0), V(-22, -25.5, 0)), False)
sketch15.addGeometry(Part.LineSegment(V(-22, -25.5, 0), V(-22, 25.5, 0)), False)
sketch15.addGeometry(Part.LineSegment(V(-22, 25.5, 0), V(-17.5, 25.5, 0)), False)
sketch15.addGeometry(Part.LineSegment(V(-17.5, 25.5, 0), V(-17.5, -25.5, 0)), False)
sketch15.addConstraint(Sketcher.Constraint("Coincident", 0, 2, 1, 1))
sketch15.addConstraint(Sketcher.Constraint("Coincident", 1, 2, 2, 1))
sketch15.addConstraint(Sketcher.Constraint("Coincident", 2, 2, 3, 1))
sketch15.addConstraint(Sketcher.Constraint("Coincident", 3, 2, 0, 1))
sketch15.addConstraint(Sketcher.Constraint("Horizontal", 0))
sketch15.addConstraint(Sketcher.Constraint("Vertical", 1))
sketch15.addConstraint(Sketcher.Constraint("Horizontal", 2))
sketch15.addConstraint(Sketcher.Constraint("Vertical", 3))
sketch15.addConstraint(Sketcher.Constraint("DistanceY", 1, 1, 1, 2, Q("51 mm")))
sketch15.addConstraint(Sketcher.Constraint("DistanceX", 0, 2, 0, 1, Q("4.5 mm")))
sketch15.addConstraint(Sketcher.Constraint("DistanceX", 0, 2, -1, 1, Q("22 mm")))
sketch15.addConstraint(Sketcher.Constraint("DistanceY", 0, 2, -1, 1, Q("25.5 mm")))
pocket10 = body.newObject("PartDesign::Pocket", "Pocket009")
pocket10.Profile = sketch15
pocket10.Length = 12.5
doc.recompute()

boolean2 = body2.newObject("PartDesign::Boolean", "Boolean001")
boolean2.Type = "Cut"
boolean2.addObjects([body3])

doc.recompute()
